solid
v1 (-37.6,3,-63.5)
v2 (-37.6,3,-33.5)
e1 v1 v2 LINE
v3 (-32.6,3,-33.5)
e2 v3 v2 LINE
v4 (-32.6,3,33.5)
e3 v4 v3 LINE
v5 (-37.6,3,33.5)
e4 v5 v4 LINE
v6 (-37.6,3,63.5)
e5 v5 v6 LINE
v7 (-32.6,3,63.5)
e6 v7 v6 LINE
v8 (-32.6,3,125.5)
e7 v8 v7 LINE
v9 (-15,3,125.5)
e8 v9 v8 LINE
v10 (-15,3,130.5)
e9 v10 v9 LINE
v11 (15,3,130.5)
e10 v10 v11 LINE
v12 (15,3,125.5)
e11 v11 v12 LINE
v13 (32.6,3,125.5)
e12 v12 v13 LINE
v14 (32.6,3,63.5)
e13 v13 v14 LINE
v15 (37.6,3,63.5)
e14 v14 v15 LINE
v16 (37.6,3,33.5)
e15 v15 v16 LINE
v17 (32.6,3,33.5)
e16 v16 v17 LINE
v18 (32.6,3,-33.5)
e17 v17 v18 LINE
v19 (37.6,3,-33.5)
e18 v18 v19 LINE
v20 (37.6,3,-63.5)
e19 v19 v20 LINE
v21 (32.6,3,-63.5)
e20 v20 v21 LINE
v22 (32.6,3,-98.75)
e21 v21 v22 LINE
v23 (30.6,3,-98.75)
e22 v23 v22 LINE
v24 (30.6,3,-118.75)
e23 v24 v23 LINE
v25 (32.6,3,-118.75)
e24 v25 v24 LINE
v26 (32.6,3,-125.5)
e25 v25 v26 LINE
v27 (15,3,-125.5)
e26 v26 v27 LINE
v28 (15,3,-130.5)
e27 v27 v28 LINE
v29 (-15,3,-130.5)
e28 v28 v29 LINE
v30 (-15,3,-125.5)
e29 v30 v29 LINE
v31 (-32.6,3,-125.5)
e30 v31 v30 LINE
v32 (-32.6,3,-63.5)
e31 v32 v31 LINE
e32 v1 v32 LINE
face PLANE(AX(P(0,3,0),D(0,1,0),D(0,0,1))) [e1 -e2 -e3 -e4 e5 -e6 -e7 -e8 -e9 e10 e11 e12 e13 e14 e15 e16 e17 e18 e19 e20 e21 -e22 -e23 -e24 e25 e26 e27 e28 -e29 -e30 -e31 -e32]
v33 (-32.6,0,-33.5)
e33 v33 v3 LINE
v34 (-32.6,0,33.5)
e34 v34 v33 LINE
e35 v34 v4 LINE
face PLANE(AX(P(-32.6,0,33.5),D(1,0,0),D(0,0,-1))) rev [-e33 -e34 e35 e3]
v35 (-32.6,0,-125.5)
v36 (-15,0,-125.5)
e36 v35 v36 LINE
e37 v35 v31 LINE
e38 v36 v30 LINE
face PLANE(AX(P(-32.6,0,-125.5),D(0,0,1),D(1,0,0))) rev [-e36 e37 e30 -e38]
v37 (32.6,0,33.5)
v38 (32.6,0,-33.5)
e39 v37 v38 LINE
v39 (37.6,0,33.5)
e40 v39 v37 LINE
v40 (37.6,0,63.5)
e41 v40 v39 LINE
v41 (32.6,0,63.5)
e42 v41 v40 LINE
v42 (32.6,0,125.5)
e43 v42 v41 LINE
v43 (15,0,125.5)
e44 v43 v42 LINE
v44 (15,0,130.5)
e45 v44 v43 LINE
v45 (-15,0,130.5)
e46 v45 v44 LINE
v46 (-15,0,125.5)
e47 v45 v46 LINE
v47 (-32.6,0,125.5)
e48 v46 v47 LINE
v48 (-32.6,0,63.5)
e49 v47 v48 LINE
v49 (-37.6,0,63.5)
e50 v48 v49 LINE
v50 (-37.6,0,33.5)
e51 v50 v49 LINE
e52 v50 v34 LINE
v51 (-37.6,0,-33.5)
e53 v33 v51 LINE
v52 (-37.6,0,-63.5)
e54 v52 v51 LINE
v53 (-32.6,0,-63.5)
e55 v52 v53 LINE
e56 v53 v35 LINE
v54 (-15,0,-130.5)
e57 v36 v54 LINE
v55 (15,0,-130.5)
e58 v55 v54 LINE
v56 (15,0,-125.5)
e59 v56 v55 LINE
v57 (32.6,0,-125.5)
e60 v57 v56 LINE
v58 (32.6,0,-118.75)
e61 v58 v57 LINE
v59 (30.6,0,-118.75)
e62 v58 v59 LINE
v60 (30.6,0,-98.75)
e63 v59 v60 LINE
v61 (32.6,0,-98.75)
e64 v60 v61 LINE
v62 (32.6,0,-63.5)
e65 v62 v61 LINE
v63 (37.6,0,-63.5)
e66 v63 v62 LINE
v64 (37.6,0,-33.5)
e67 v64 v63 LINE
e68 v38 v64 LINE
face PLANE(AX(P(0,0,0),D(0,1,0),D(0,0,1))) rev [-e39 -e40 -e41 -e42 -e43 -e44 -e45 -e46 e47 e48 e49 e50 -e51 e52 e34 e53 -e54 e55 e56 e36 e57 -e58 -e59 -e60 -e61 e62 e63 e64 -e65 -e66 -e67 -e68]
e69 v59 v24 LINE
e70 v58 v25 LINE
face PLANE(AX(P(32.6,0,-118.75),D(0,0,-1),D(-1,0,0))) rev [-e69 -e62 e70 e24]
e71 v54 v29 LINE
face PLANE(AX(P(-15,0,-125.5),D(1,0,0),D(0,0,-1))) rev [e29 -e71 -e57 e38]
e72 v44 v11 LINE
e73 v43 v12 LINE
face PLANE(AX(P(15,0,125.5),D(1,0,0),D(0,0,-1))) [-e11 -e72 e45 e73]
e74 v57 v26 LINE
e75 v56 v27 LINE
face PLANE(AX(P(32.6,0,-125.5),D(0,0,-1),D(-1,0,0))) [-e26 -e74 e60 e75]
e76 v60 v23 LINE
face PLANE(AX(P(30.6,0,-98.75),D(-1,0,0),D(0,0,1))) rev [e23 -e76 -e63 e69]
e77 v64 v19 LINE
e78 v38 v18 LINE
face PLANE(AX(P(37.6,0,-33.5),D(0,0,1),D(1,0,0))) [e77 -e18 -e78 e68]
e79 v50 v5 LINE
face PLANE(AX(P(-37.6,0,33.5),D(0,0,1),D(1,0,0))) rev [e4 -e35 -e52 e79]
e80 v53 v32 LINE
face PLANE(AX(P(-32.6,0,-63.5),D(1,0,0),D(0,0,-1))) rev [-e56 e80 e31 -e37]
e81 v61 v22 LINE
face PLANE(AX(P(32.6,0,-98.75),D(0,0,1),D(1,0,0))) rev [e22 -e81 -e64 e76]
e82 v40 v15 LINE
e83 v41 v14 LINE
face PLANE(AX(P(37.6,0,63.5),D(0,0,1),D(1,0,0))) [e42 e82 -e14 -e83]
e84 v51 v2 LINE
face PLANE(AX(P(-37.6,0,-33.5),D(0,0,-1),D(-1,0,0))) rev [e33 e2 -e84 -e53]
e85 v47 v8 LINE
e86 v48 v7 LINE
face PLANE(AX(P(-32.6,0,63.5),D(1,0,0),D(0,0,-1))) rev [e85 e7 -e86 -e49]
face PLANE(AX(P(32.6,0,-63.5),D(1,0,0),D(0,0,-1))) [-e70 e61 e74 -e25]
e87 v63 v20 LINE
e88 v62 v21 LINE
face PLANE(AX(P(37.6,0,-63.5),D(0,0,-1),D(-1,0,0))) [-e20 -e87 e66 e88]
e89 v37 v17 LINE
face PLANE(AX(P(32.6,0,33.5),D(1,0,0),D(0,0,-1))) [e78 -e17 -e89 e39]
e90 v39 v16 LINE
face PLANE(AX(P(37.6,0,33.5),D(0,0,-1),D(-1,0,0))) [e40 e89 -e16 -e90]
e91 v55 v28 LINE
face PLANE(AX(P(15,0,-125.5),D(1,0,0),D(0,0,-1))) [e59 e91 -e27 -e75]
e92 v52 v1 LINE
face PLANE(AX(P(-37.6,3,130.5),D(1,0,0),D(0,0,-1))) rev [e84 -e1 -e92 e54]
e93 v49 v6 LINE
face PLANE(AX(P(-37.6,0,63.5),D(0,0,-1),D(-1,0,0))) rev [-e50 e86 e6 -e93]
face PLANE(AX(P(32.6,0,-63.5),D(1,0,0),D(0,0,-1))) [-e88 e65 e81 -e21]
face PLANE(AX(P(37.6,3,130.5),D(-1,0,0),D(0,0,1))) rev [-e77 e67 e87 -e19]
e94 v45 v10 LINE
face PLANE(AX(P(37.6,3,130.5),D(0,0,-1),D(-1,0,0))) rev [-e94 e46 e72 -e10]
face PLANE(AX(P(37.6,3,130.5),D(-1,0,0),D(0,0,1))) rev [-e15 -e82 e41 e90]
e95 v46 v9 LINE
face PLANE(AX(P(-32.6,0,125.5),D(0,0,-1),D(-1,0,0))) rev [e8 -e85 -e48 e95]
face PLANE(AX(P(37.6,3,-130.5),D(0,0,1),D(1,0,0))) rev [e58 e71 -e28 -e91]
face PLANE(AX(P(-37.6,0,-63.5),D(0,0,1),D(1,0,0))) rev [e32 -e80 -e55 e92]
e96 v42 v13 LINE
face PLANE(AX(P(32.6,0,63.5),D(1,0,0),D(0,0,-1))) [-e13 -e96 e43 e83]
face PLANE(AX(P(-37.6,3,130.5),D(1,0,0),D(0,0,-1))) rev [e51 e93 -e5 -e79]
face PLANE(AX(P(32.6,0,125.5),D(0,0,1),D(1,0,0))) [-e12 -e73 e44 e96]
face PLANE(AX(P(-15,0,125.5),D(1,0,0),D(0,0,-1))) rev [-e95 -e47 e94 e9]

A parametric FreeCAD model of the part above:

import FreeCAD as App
import Part
import Sketcher
Q = App.Units.Quantity


def add_polygon(sketch, points):
    """Adds a closed chain of lines whose ends are joined by coincident constraints."""
    first, n = sketch.GeometryCount, len(points)
    for a, b in zip(points, points[1:] + points[:1]):
        sketch.addGeometry(Part.LineSegment(App.Vector(*a, 0), App.Vector(*b, 0)), False)
    for i in range(n):
        sketch.addConstraint(Sketcher.Constraint("Coincident", first + i, 2, first + (i + 1) % n, 1))

doc = App.newDocument("Part")
body = doc.addObject("PartDesign::Body", "Body")

sketch1 = body.newObject("Sketcher::SketchObject", "Sketch")
sketch1.AttachmentSupport = (doc.getObject("XZ_Plane"), [""])
sketch1.MapMode = "FlatFace"
add_polygon(sketch1, [(-38, -130), (-38, 130), (38, 130), (38, -130)])
sketch1.addConstraint([
    Sketcher.Constraint("Vertical", 0),
    Sketcher.Constraint("Horizontal", 1),
    Sketcher.Constraint("Vertical", 2),
    Sketcher.Constraint("Horizontal", 3),
    Sketcher.Constraint("Symmetric", 0, 2, 2, 2, -1, 1),
    Sketcher.Constraint("DistanceY", 0, 1, 0, 2, Q("261 mm")),
    Sketcher.Constraint("DistanceX", 1, 1, 1, 2, Q("75.2 mm")),
])
pad1 = body.newObject("PartDesign::Pad", "Pad")
pad1.Profile = sketch1
pad1.Length = 3
pad1.Reversed = True

sketch2 = body.newObject("Sketcher::SketchObject", "Sketch001")
sketch2.AttachmentSupport = (doc.getObject("XZ_Plane"), [""])
sketch2.MapMode = "FlatFace"
sketch2.AttachmentOffset = App.Placement(App.Vector(0, 0, -3), App.Rotation())
add_polygon(sketch2, [(-38, 130), (-15, 130), (-15, 126), (-33, 126), (-33, 64), (-38, 64)])
add_polygon(sketch2, [(-38, -34), (-38, 34), (-33, 34), (-33, -34)])
add_polygon(sketch2, [(-15, -130), (-38, -130), (-38, -64), (-33, -64), (-33, -126), (-15, -126)])
sketch2.addConstraint([
    Sketcher.Constraint("Horizontal", 0),
    Sketcher.Constraint("Vertical", 1),
    Sketcher.Constraint("Horizontal", 2),
    Sketcher.Constraint("Vertical", 3),
    Sketcher.Constraint("Horizontal", 4),
    Sketcher.Constraint("Vertical", 5),
    Sketcher.Constraint("Vertical", 6),
    Sketcher.Constraint("Horizontal", 7),
    Sketcher.Constraint("Vertical", 8),
    Sketcher.Constraint("Horizontal", 9),
    Sketcher.Constraint("Horizontal", 10),
    Sketcher.Constraint("Vertical", 11),
    Sketcher.Constraint("Horizontal", 12),
    Sketcher.Constraint("Vertical", 13),
    Sketcher.Constraint("Horizontal", 14),
    Sketcher.Constraint("Vertical", 15),
    Sketcher.Constraint("Symmetric", 5, 2, 10, 2, -1),
    Sketcher.Constraint("Symmetric", 3, 2, 12, 2, -1),
    Sketcher.Constraint("Symmetric", 1, 2, 14, 2, -1),
    Sketcher.Constraint("Vertical", 5, 2, 6, 2),
    Sketcher.Constraint("Vertical", 3, 2, 7, 2),
    Sketcher.Constraint("Equal", 12, 1),
    Sketcher.Constraint("Equal", 5, 6),
    Sketcher.Constraint("DistanceX", 4, 2, 4, 1, Q("5 mm")),
    Sketcher.Constraint("DistanceY", 3, 2, 3, 1, Q("62 mm")),
    Sketcher.Constraint("DistanceX", 0, 1, 0, 2, Q("22.6 mm")),
    Sketcher.Constraint("DistanceX", 0, 2, -1, 1, Q("15 mm")),
    Sketcher.Constraint("DistanceY", 6, 2, 4, 2, Q("30 mm")),
    Sketcher.Constraint("DistanceY", 10, 2, 9, 2, Q("97 mm")),
])
pocket1 = body.newObject("PartDesign::Pocket", "Pocket")
pocket1.Profile = sketch2
pocket1.Type = "ThroughAll"
pocket1.Reversed = True
doc.recompute()

mirrored = body.newObject("PartDesign::Mirrored", "Mirrored")
mirrored.Originals = [pocket1]
mirrored.MirrorPlane = (doc.getObject("YZ_Plane"), [""])
body.Tip = mirrored

sketch3 = body.newObject("Sketcher::SketchObject", "Sketch002")
sketch3.AttachmentSupport = (doc.getObject("XZ_Plane"), [""])
sketch3.MapMode = "FlatFace"
sketch3.AttachmentOffset = App.Placement(App.Vector(0, 0, -3), App.Rotation())
add_polygon(sketch3, [(30.6, -118.8), (30.6, -98.8), (32.6, -98.8), (32.6, -118.8)])
sketch3.addConstraint([
    Sketcher.Constraint("Vertical", 0),
    Sketcher.Constraint("Horizontal", 1),
    Sketcher.Constraint("Vertical", 2),
    Sketcher.Constraint("Horizontal", 3),
    Sketcher.Constraint("DistanceX", 1, 1, 1, 2, Q("2 mm")),
    Sketcher.Constraint("DistanceY", 0, 1, 0, 2, Q("20 mm")),
    Sketcher.Constraint("DistanceX", -1, 1, 0, 2, Q("30.6 mm")),
    Sketcher.Constraint("DistanceY", 0, 2, -1, 1, Q("98.75 mm")),
])
pocket2 = body.newObject("PartDesign::Pocket", "Pocket001")
pocket2.Profile = sketch3
pocket2.Type = "ThroughAll"
pocket2.Reversed = True

doc.recompute()
